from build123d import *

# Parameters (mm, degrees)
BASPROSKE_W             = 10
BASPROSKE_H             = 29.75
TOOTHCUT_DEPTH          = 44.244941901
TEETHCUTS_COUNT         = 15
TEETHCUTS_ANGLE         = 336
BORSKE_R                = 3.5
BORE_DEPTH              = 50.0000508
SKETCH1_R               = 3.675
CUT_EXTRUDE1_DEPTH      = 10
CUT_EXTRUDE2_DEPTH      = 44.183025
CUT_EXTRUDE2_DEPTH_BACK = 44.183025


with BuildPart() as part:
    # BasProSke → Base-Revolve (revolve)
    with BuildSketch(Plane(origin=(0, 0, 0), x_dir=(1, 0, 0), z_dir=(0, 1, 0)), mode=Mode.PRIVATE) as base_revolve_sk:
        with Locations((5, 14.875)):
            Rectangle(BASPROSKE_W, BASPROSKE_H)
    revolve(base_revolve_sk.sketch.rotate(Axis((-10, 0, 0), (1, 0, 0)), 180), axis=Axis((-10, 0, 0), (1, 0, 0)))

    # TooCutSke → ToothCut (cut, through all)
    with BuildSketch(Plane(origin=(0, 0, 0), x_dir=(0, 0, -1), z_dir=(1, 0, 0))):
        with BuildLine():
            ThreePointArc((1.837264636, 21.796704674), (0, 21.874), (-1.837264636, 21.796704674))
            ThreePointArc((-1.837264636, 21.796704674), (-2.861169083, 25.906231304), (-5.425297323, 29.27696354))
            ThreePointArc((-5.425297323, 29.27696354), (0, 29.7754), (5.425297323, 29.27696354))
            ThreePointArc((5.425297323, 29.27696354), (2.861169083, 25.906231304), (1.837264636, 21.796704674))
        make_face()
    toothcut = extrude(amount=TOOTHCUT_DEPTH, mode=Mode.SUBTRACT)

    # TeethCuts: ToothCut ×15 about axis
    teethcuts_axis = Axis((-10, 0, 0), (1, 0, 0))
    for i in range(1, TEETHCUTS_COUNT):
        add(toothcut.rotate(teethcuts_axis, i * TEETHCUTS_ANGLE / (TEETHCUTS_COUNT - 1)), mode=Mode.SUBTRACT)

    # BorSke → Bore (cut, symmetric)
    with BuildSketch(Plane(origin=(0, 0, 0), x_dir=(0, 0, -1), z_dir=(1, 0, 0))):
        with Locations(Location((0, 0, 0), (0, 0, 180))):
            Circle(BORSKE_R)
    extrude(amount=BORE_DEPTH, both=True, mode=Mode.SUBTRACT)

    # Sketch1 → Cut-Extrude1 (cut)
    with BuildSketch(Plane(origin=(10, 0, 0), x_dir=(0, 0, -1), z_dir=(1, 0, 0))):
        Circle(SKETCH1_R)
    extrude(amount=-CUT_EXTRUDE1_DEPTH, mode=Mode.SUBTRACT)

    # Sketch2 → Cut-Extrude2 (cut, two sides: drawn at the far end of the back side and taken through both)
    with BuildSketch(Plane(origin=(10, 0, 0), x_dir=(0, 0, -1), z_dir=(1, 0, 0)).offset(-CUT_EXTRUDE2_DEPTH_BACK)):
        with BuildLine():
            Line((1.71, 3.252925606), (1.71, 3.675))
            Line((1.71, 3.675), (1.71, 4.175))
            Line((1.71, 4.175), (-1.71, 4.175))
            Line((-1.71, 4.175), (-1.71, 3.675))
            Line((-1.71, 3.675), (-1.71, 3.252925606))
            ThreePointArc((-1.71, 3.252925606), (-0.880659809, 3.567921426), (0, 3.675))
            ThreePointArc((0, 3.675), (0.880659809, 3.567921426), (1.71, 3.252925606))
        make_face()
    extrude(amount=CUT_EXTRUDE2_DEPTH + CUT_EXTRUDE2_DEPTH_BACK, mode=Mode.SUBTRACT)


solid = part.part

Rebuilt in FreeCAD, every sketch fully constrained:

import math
import FreeCAD as App
import Part
import Sketcher
from FreeCAD import Vector


def add_polygon(sketch, points):
    """Adds a closed chain of lines whose ends are joined by coincident constraints."""
    first, n = sketch.GeometryCount, len(points)
    for a, b in zip(points, points[1:] + points[:1]):
        sketch.addGeometry(Part.LineSegment(App.Vector(*a, 0), App.Vector(*b, 0)), False)
    for i in range(n):
        sketch.addConstraint(Sketcher.Constraint("Coincident", first + i, 2, first + (i + 1) % n, 1))

doc = App.newDocument("Part")
body = doc.addObject("PartDesign::Body", "Body")

# Sketch on XZ plane
sketch1 = body.newObject("Sketcher::SketchObject", "Sketch")
sketch1.AttachmentSupport = (doc.getObject("XZ_Plane"), [""])
sketch1.MapMode = "FlatFace"
add_polygon(sketch1, [(0, -30), (0, 0), (10, 0), (10, -30)])  # lines 0-3
sketch1.addConstraint([
    Sketcher.Constraint("Vertical", 0),
    Sketcher.Constraint("Horizontal", 1),
    Sketcher.Constraint("Vertical", 2),
    Sketcher.Constraint("Horizontal", 3),
    Sketcher.Constraint("Coincident", 0, 2, -1, 1),
    Sketcher.Constraint("DistanceX", 1, 1, 1, 2, 10.0),
    Sketcher.Constraint("DistanceY", 0, 1, 0, 2, 29.75),
])
revolution = body.newObject("PartDesign::Revolution", "Revolution")
revolution.Profile = sketch1
revolution.ReferenceAxis = (sketch1, ["H_Axis"])
revolution.Angle = 360

# Sketch on YZ plane
sketch2 = body.newObject("Sketcher::SketchObject", "Sketch001")
sketch2.AttachmentSupport = (doc.getObject("YZ_Plane"), [""])
sketch2.MapMode = "FlatFace"
sketch2.addGeometry([
    Part.ArcOfCircle(Part.Circle(Vector(0, 0, 0), Vector(0, 0, 1), 21.9), math.radians(-4.82), math.radians(4.82)),
    Part.ArcOfCircle(Part.Circle(Vector(21.4, -12.3, 0), Vector(0, 0, 1), 10.5), math.radians(41), math.radians(88)),
    Part.ArcOfCircle(Part.Circle(Vector(0, 0, 0), Vector(0, 0, 1), 29.8), math.radians(-10), math.radians(10)),
    Part.ArcOfCircle(Part.Circle(Vector(21.4, 12.3, 0), Vector(0, 0, 1), 10.5), math.radians(-88), math.radians(-41)),
], False)
sketch2.addConstraint([
    Sketcher.Constraint("Coincident", 0, 1, 1, 2),
    Sketcher.Constraint("Coincident", 1, 1, 2, 1),
    Sketcher.Constraint("Coincident", 2, 2, 3, 2),
    Sketcher.Constraint("Coincident", 3, 1, 0, 2),
    Sketcher.Constraint("Coincident", 0, 3, -1, 1),
    Sketcher.Constraint("Coincident", 2, 3, -1, 1),
    Sketcher.Constraint("Equal", 1, 3),
    Sketcher.Constraint("Symmetric", 1, 3, 3, 3, -1),
    Sketcher.Constraint("Radius", 1, 10.5),
    Sketcher.Constraint("Radius", 0, 21.874),
    Sketcher.Constraint("Radius", 2, 29.7754),
    Sketcher.Constraint("DistanceX", -1, 1, 1, 3, 21.365118),
    Sketcher.Constraint("DistanceY", 1, 3, -1, 1, 12.328391),
])
pocket1 = body.newObject("PartDesign::Pocket", "Pocket")
pocket1.Profile = sketch2
pocket1.Type = "ThroughAll"
pocket1.Reversed = True
doc.recompute()

polarpattern = body.newObject("PartDesign::PolarPattern", "PolarPattern")
polarpattern.Originals = [pocket1]
polarpattern.Axis = (doc.getObject("X_Axis"), [""])
polarpattern.Angle = 360
polarpattern.Occurrences = 15
body.Tip = polarpattern

# Sketch on YZ plane
sketch3 = body.newObject("Sketcher::SketchObject", "Sketch002")
sketch3.AttachmentSupport = (doc.getObject("YZ_Plane"), [""])
sketch3.MapMode = "FlatFace"
sketch3.addGeometry(Part.Circle(Vector(0, 0, 0), Vector(0, 0, 1), 3.5), False)
sketch3.addConstraint([
    Sketcher.Constraint("Coincident", 0, 3, -1, 1),
    Sketcher.Constraint("Diameter", 0, 7.0),
])
pocket2 = body.newObject("PartDesign::Pocket", "Pocket001")
pocket2.Profile = sketch3
pocket2.Length = 100.000102
pocket2.Midplane = True

# Sketch on YZ plane
sketch4 = body.newObject("Sketcher::SketchObject", "Sketch003")
sketch4.AttachmentSupport = (doc.getObject("YZ_Plane"), [""])
sketch4.MapMode = "FlatFace"
sketch4.AttachmentOffset = App.Placement(Vector(0, 0, 10), App.Rotation())
sketch4.addGeometry(Part.Circle(Vector(0, 0, 0), Vector(0, 0, 1), 3.7), False)
sketch4.addConstraint([
    Sketcher.Constraint("Coincident", 0, 3, -1, 1),
    Sketcher.Constraint("Diameter", 0, 7.35),
])
pocket3 = body.newObject("PartDesign::Pocket", "Pocket002")
pocket3.Profile = sketch4
pocket3.Length = 10

# Sketch on YZ plane
sketch5 = body.newObject("Sketcher::SketchObject", "Sketch004")
sketch5.AttachmentSupport = (doc.getObject("YZ_Plane"), [""])
sketch5.MapMode = "FlatFace"
sketch5.AttachmentOffset = App.Placement(Vector(0, 0, 10), App.Rotation())
sketch5.addGeometry([
    Part.LineSegment(Vector(3.3, -1.7, 0), Vector(4.2, -1.7, 0)),  # 0
    Part.LineSegment(Vector(4.2, -1.7, 0), Vector(4.2, 1.7, 0)),  # 1
    Part.LineSegment(Vector(4.2, 1.7, 0), Vector(3.3, 1.7, 0)),  # 2
    Part.ArcOfCircle(Part.Circle(Vector(0, 0, 0), Vector(0, 0, 1), 3.7), math.radians(0), math.radians(28)),  # 3
    Part.ArcOfCircle(Part.Circle(Vector(0, 0, 0), Vector(0, 0, 1), 3.7), math.radians(-28), math.radians(0)),  # 4
], False)
sketch5.addConstraint([
    Sketcher.Constraint("Coincident", 0, 2, 1, 1),
    Sketcher.Constraint("Coincident", 1, 2, 2, 1),
    Sketcher.Constraint("Coincident", 2, 2, 3, 2),
    Sketcher.Constraint("Tangent", 3, 1, 4, 2),
    Sketcher.Constraint("Coincident", 4, 1, 0, 1),
    Sketcher.Constraint("Horizontal", 0),
    Sketcher.Constraint("Vertical", 1),
    Sketcher.Constraint("Horizontal", 2),
    Sketcher.Constraint("Coincident", 3, 3, -1, 1),
    Sketcher.Constraint("Equal", 3, 4),
    Sketcher.Constraint("PointOnObject", 3, 1, -1),
    Sketcher.Constraint("Vertical", 2, 2, 4, 1),
    Sketcher.Constraint("Radius", 3, 3.675),
    Sketcher.Constraint("DistanceY", 1, 1, 1, 2, 3.42),
    Sketcher.Constraint("DistanceX", 3, 1, 0, 2, 0.5),
])
pocket4 = body.newObject("PartDesign::Pocket", "Pocket003")
pocket4.Profile = sketch5
pocket4.Type = "ThroughAll"
pocket4.Midplane = True

doc.recompute()
